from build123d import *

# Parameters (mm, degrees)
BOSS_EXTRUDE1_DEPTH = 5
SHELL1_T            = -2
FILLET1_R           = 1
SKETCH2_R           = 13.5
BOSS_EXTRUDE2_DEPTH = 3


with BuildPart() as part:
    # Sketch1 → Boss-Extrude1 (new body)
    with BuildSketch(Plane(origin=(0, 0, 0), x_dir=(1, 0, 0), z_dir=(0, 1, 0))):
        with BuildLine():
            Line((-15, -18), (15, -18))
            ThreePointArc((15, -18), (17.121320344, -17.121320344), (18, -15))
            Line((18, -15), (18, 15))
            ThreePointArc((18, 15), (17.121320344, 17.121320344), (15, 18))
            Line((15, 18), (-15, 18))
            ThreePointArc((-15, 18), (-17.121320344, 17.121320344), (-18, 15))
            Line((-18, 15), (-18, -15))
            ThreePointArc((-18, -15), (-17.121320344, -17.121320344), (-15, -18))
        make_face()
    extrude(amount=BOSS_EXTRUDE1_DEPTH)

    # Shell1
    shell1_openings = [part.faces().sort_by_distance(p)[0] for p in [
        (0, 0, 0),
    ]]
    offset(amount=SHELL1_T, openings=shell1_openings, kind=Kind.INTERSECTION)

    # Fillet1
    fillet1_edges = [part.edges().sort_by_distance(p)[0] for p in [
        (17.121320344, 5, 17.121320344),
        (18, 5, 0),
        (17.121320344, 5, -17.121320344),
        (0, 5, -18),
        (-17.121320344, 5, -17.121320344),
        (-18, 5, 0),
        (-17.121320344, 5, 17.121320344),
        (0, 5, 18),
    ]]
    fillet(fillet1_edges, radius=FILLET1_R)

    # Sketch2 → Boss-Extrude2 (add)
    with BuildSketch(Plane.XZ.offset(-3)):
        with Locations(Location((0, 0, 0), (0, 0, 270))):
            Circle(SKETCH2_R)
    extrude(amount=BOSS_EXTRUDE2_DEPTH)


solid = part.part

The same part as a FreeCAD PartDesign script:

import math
import FreeCAD as App
import Part
import Sketcher

V = App.Vector


def edges_at(feature, points):
    """Names of the edges that pass closest to the given points."""
    edges = feature.Shape.Edges
    near = lambda p: min(range(len(edges)), key=lambda i: edges[i].distToShape(Part.Vertex(*p))[0])
    return sorted({f"Edge{near(p) + 1}" for p in points})


def faces_at(feature, points):
    """Names of the faces that lie closest to the given points."""
    faces = feature.Shape.Faces
    near = lambda p: min(range(len(faces)), key=lambda i: faces[i].distToShape(Part.Vertex(*p))[0])
    return sorted({f"Face{near(p) + 1}" for p in points})

doc = App.newDocument("Part")
params = doc.addObject("Spreadsheet::Sheet", "Params")
for row, (alias, value) in enumerate([
    ("sketch1_radius", "3 mm"),
    ("sketch1_width", "30 mm"),
    ("pad1_length", "5 mm"),
    ("thickness_wall", "2 mm"),
    ("fillet_radius", "1 mm"),
    ("sketch2_diameter", "27 mm"),
    ("pad2_length", "3 mm"),
], start=1):
    params.set(f"A{row}", alias)
    params.set(f"B{row}", "=" + value)
    params.setAlias(f"B{row}", alias)

body = doc.addObject("PartDesign::Body", "Body")

# Sketch on XZ plane
sketch1 = body.newObject("Sketcher::SketchObject", "Sketch")
sketch1.AttachmentSupport = (doc.getObject("XZ_Plane"), [""])
sketch1.MapMode = "FlatFace"
sketch1.addGeometry(Part.LineSegment(V(-15, 18, 0), V(15, 18, 0)), False)
sketch1.addGeometry(Part.ArcOfCircle(Part.Circle(V(15, 15, 0), V(0, 0, 1), 3), math.radians(0), math.radians(90)), False)
sketch1.addGeometry(Part.LineSegment(V(18, 15, 0), V(18, -15, 0)), False)
sketch1.addGeometry(Part.ArcOfCircle(Part.Circle(V(15, -15, 0), V(0, 0, 1), 3), math.radians(-90), math.radians(0)), False)
sketch1.addGeometry(Part.LineSegment(V(15, -18, 0), V(-15, -18, 0)), False)
sketch1.addGeometry(Part.ArcOfCircle(Part.Circle(V(-15, -15, 0), V(0, 0, 1), 3), math.radians(180), math.radians(270)), False)
sketch1.addGeometry(Part.LineSegment(V(-18, -15, 0), V(-18, 15, 0)), False)
sketch1.addGeometry(Part.ArcOfCircle(Part.Circle(V(-15, 15, 0), V(0, 0, 1), 3), math.radians(90), math.radians(180)), False)
sketch1.addConstraint(Sketcher.Constraint("Tangent", 0, 2, 1, 2))
sketch1.addConstraint(Sketcher.Constraint("Tangent", 1, 1, 2, 1))
sketch1.addConstraint(Sketcher.Constraint("Tangent", 2, 2, 3, 2))
sketch1.addConstraint(Sketcher.Constraint("Tangent", 3, 1, 4, 1))
sketch1.addConstraint(Sketcher.Constraint("Tangent", 4, 2, 5, 2))
sketch1.addConstraint(Sketcher.Constraint("Tangent", 5, 1, 6, 1))
sketch1.addConstraint(Sketcher.Constraint("Tangent", 6, 2, 7, 2))
sketch1.addConstraint(Sketcher.Constraint("Tangent", 7, 1, 0, 1))
sketch1.addConstraint(Sketcher.Constraint("Horizontal", 0))
sketch1.addConstraint(Sketcher.Constraint("Vertical", 2))
sketch1.addConstraint(Sketcher.Constraint("Horizontal", 4))
sketch1.addConstraint(Sketcher.Constraint("Vertical", 6))
sketch1.addConstraint(Sketcher.Constraint("Equal", 1, 3))
sketch1.addConstraint(Sketcher.Constraint("Equal", 3, 5))
sketch1.addConstraint(Sketcher.Constraint("Equal", 5, 7))
sketch1.addConstraint(Sketcher.Constraint("Symmetric", 1, 3, 5, 3, -1, 1))
sketch1.addConstraint(Sketcher.Constraint("Equal", 4, 2))
sketch1.addConstraint(Sketcher.Constraint("Radius", 1, 3.0))
sketch1.addConstraint(Sketcher.Constraint("DistanceX", 0, 1, 0, 2, 30.0))
sketch1.setExpression("Constraints[17]", "Params.sketch1_radius")
sketch1.setExpression("Constraints[18]", "Params.sketch1_width")
pad1 = body.newObject("PartDesign::Pad", "Pad")
pad1.Profile = sketch1
pad1.setExpression("Length", "Params.pad1_length")
pad1.Reversed = True
doc.recompute()

thickness = body.newObject("PartDesign::Thickness", "Thickness")
thickness.Base = (pad1, faces_at(pad1, [(0, 0, 0)]))
thickness.setExpression("Value", "Params.thickness_wall")
thickness.Reversed = True
thickness.Join = "Intersection"
doc.recompute()

fillet = body.newObject("PartDesign::Fillet", "Fillet")
fillet.Base = (thickness, edges_at(thickness, [
    (17.121, 5, 17.121),
    (18, 5, 0),
    (17.121, 5, -17.121),
    (0, 5, -18),
    (-17.121, 5, -17.121),
    (-18, 5, 0),
    (-17.121, 5, 17.121),
    (0, 5, 18),
]))
fillet.setExpression("Radius", "Params.fillet_radius")

# Sketch on XZ plane
sketch2 = body.newObject("Sketcher::SketchObject", "Sketch001")
sketch2.AttachmentSupport = (doc.getObject("XZ_Plane"), [""])
sketch2.MapMode = "FlatFace"
sketch2.AttachmentOffset = App.Placement(V(0, 0, -3), App.Rotation())
sketch2.addGeometry(Part.Circle(V(0, 0, 0), V(0, 0, 1), 14), False)
sketch2.addConstraint(Sketcher.Constraint("Coincident", 0, 3, -1, 1))
sketch2.addConstraint(Sketcher.Constraint("Diameter", 0, 27.0))
sketch2.setExpression("Constraints[1]", "Params.sketch2_diameter")
pad2 = body.newObject("PartDesign::Pad", "Pad001")
pad2.Profile = sketch2
pad2.setExpression("Length", "Params.pad2_length")

doc.recompute()
